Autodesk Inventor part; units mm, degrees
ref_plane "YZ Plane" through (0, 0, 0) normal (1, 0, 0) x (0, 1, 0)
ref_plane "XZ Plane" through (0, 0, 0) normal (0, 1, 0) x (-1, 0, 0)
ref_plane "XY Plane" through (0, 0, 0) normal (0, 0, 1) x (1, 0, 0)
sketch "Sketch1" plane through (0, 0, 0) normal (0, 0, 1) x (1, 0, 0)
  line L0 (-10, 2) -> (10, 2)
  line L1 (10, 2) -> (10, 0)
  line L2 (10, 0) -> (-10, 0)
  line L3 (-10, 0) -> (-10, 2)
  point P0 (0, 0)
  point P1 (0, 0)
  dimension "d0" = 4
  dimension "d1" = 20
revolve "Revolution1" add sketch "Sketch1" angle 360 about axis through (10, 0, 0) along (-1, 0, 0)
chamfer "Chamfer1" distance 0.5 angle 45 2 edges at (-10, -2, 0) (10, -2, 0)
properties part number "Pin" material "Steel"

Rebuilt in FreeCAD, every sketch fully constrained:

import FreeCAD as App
import Part
import Sketcher

V = App.Vector
Q = App.Units.Quantity


def edges_at(feature, points):
    """Names of the edges that pass closest to the given points."""
    edges = feature.Shape.Edges
    near = lambda p: min(range(len(edges)), key=lambda i: edges[i].distToShape(Part.Vertex(*p))[0])
    return sorted({f"Edge{near(p) + 1}" for p in points})

doc = App.newDocument("Part")
body = doc.addObject("PartDesign::Body", "Body")

# Sketch on XY plane
sketch1 = body.newObject("Sketcher::SketchObject", "Sketch")
sketch1.AttachmentSupport = (doc.getObject("XY_Plane"), [""])
sketch1.MapMode = "FlatFace"
sketch1.addGeometry([
    Part.LineSegment(V(10, 2, 0), V(-10, 2, 0)),
    Part.LineSegment(V(-10, 2, 0), V(-10, 0, 0)),
    Part.LineSegment(V(-10, 0, 0), V(10, 0, 0)),
    Part.LineSegment(V(10, 0, 0), V(10, 2, 0)),
], False)
sketch1.addConstraint([
    Sketcher.Constraint("Coincident", 0, 2, 1, 1),
    Sketcher.Constraint("Coincident", 1, 2, 2, 1),
    Sketcher.Constraint("Coincident", 2, 2, 3, 1),
    Sketcher.Constraint("Coincident", 3, 2, 0, 1),
    Sketcher.Constraint("Horizontal", 0),
    Sketcher.Constraint("Vertical", 1),
    Sketcher.Constraint("Horizontal", 2),
    Sketcher.Constraint("Vertical", 3),
    Sketcher.Constraint("Symmetric", 1, 2, 2, 2, -1, 1),
    Sketcher.Constraint("DistanceX", 0, 2, 0, 1, Q("20 mm")),
    Sketcher.Constraint("DistanceY", 1, 2, 1, 1, Q("2 mm")),
])
revolution = body.newObject("PartDesign::Revolution", "Revolution")
revolution.Profile = sketch1
revolution.ReferenceAxis = (sketch1, ["H_Axis"])
revolution.Angle = 360
doc.recompute()

chamfer = body.newObject("PartDesign::Chamfer", "Chamfer")
chamfer.Base = (revolution, edges_at(revolution, [(-10, -2, 0), (10, -2, 0)]))
chamfer.Size = 0.5

doc.recompute()
